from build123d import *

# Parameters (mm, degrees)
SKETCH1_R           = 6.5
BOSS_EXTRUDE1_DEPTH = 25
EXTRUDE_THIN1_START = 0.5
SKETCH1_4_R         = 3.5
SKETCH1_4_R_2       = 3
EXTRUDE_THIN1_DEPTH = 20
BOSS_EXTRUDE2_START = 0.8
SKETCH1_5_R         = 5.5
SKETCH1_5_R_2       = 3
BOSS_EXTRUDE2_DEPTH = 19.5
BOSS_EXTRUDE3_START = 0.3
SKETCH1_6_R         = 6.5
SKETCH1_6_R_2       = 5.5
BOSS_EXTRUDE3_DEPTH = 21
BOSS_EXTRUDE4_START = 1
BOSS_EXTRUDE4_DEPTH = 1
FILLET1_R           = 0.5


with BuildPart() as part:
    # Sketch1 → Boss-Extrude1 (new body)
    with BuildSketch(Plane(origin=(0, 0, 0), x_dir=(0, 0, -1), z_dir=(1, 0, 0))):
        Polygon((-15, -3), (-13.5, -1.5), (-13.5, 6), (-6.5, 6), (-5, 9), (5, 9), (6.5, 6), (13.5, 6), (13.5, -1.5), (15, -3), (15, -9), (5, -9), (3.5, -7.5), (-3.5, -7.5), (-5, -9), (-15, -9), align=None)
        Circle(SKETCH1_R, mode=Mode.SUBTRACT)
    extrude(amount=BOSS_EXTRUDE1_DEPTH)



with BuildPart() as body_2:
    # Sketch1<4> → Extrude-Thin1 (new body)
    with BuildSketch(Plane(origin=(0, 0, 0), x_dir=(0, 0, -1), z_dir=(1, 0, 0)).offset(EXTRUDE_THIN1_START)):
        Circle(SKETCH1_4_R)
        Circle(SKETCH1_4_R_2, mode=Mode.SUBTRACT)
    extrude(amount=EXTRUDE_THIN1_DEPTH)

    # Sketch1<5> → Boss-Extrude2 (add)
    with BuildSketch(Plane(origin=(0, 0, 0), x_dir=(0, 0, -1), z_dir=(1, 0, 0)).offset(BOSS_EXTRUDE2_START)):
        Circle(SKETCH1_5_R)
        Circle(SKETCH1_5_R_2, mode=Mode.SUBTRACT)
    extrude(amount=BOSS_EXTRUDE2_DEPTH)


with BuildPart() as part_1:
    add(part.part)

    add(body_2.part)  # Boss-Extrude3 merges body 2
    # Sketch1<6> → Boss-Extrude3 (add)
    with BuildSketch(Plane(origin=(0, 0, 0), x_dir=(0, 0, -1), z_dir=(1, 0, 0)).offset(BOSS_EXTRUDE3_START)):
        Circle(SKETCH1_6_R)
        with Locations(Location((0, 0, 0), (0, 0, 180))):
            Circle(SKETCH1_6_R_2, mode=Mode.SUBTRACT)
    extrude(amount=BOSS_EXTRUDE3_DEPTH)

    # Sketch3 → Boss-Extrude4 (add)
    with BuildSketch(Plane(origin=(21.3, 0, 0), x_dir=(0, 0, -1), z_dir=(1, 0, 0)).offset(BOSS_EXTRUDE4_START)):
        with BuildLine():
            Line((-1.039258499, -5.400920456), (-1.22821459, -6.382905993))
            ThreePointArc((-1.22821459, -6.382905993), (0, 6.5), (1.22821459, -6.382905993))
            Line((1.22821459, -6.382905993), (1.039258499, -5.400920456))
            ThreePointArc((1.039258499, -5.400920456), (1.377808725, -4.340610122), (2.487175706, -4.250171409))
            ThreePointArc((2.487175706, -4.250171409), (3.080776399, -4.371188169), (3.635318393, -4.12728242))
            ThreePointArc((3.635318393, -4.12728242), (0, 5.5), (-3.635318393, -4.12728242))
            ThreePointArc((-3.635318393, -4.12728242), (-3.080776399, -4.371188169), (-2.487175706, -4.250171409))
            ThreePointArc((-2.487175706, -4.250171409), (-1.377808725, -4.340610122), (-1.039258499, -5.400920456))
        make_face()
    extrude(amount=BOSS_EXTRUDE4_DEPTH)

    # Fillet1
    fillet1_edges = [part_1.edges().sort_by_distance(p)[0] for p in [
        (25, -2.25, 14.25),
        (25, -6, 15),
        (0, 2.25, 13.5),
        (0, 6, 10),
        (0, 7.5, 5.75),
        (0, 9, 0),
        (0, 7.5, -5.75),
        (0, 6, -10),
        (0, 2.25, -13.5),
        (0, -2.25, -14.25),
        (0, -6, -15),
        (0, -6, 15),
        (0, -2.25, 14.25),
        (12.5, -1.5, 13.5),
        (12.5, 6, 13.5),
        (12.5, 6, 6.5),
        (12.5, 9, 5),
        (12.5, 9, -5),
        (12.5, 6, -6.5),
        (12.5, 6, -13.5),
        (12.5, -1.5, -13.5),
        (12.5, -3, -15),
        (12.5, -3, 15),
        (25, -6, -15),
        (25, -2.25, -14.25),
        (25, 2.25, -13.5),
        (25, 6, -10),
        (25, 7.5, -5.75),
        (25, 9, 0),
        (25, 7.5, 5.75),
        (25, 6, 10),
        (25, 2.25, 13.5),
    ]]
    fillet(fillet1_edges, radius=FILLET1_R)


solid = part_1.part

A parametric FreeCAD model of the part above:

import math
import FreeCAD as App
import Part
import Sketcher
from FreeCAD import Vector


def edges_at(feature, points):
    """Names of the edges that pass closest to the given points."""
    edges = feature.Shape.Edges
    near = lambda p: min(range(len(edges)), key=lambda i: edges[i].distToShape(Part.Vertex(*p))[0])
    return sorted({f"Edge{near(p) + 1}" for p in points})


def add_polygon(sketch, points):
    """Adds a closed chain of lines whose ends are joined by coincident constraints."""
    first, n = sketch.GeometryCount, len(points)
    for a, b in zip(points, points[1:] + points[:1]):
        sketch.addGeometry(Part.LineSegment(App.Vector(*a, 0), App.Vector(*b, 0)), False)
    for i in range(n):
        sketch.addConstraint(Sketcher.Constraint("Coincident", first + i, 2, first + (i + 1) % n, 1))

doc = App.newDocument("Part")
body = doc.addObject("PartDesign::Body", "Body")

sketch1 = doc.addObject("Sketcher::SketchObject", "Sketch")
body.addObject(sketch1)
sketch1.AttachmentSupport = (doc.YZ_Plane, [""])
sketch1.MapMode = "FlatFace"
add_polygon(sketch1, [(-1.5, 13.5), (-3, 15), (-9, 15), (-9, 5), (-7.5, 3.5), (-7.5, -3.5), (-9, -5), (-9, -15), (-3, -15), (-1.5, -13.5), (6, -13.5), (6, -6.5), (9, -5), (9, 5), (6, 6.5), (6, 13.5)])
sketch1.addGeometry(Part.Circle(Vector(0, 0, 0), Vector(0, 0, 1), 6.5), False)
sketch1.addConstraint(Sketcher.Constraint("Horizontal", 1))
sketch1.addConstraint(Sketcher.Constraint("Vertical", 2))
sketch1.addConstraint(Sketcher.Constraint("Vertical", 4))
sketch1.addConstraint(Sketcher.Constraint("Vertical", 6))
sketch1.addConstraint(Sketcher.Constraint("Horizontal", 7))
sketch1.addConstraint(Sketcher.Constraint("Horizontal", 9))
sketch1.addConstraint(Sketcher.Constraint("Vertical", 10))
sketch1.addConstraint(Sketcher.Constraint("Vertical", 12))
sketch1.addConstraint(Sketcher.Constraint("Vertical", 14))
sketch1.addConstraint(Sketcher.Constraint("Horizontal", 15))
sketch1.addConstraint(Sketcher.Constraint("Coincident", 16, 3, -1, 1))
sketch1.addConstraint(Sketcher.Constraint("Symmetric", 2, 2, 11, 2, -1, 1))
sketch1.addConstraint(Sketcher.Constraint("Symmetric", 5, 2, 12, 2, -1, 1))
sketch1.addConstraint(Sketcher.Constraint("Symmetric", 0, 2, 7, 2, -1))
sketch1.addConstraint(Sketcher.Constraint("Symmetric", 10, 2, 13, 2, -1))
sketch1.addConstraint(Sketcher.Constraint("Symmetric", 8, 2, 15, 2, -1))
sketch1.addConstraint(Sketcher.Constraint("Parallel", 0, 3))
sketch1.addConstraint(Sketcher.Constraint("Perpendicular", 3, 5))
sketch1.addConstraint(Sketcher.Constraint("Parallel", 5, 8))
sketch1.addConstraint(Sketcher.Constraint("Horizontal", 5, 2, 11, 2))
sketch1.addConstraint(Sketcher.Constraint("Equal", 4, 10))
sketch1.addConstraint(Sketcher.Constraint("Equal", 6, 12))
sketch1.addConstraint(Sketcher.Constraint("Equal", 0, 3))
sketch1.addConstraint(Sketcher.Constraint("Diameter", 16, 13.0))
sketch1.addConstraint(Sketcher.Constraint("DistanceX", 1, 2, 1, 1, 6.0))
sketch1.addConstraint(Sketcher.Constraint("DistanceY", 2, 2, 2, 1, 10.0))
sketch1.addConstraint(Sketcher.Constraint("DistanceY", 4, 2, 4, 1, 7.0))
sketch1.addConstraint(Sketcher.Constraint("DistanceX", 9, 1, 9, 2, 7.5))
sketch1.addConstraint(Sketcher.Constraint("DistanceX", 0, 2, -1, 1, 3.0))
pad1 = doc.addObject("PartDesign::Pad", "Pad")
body.addObject(pad1)
pad1.Profile = sketch1
pad1.Length = 25
body2 = doc.addObject("PartDesign::Body", "Body001")

sketch2 = doc.addObject("Sketcher::SketchObject", "Sketch001")
body2.addObject(sketch2)
sketch2.AttachmentSupport = (doc.getObject("YZ_Plane001"), [""])
sketch2.MapMode = "FlatFace"
sketch2.AttachmentOffset = App.Placement(Vector(0, 0, 0.5), App.Rotation())
sketch2.addGeometry(Part.Circle(Vector(0, 0, 0), Vector(0, 0, 1), 3.5), False)
sketch2.addGeometry(Part.Circle(Vector(0, 0, 0), Vector(0, 0, 1), 3), False)
sketch2.addConstraint(Sketcher.Constraint("Coincident", 0, 3, -1, 1))
sketch2.addConstraint(Sketcher.Constraint("Coincident", 1, 3, -1, 1))
sketch2.addConstraint(Sketcher.Constraint("Diameter", 0, 7.0))
sketch2.addConstraint(Sketcher.Constraint("Diameter", 1, 6.0))
pad2 = doc.addObject("PartDesign::Pad", "Pad001")
body2.addObject(pad2)
pad2.Profile = sketch2
pad2.Length = 20

sketch3 = doc.addObject("Sketcher::SketchObject", "Sketch002")
body2.addObject(sketch3)
sketch3.AttachmentSupport = (doc.getObject("YZ_Plane001"), [""])
sketch3.MapMode = "FlatFace"
sketch3.AttachmentOffset = App.Placement(Vector(0, 0, 0.8), App.Rotation())
sketch3.addGeometry(Part.Circle(Vector(0, 0, 0), Vector(0, 0, 1), 5.5), False)
sketch3.addGeometry(Part.Circle(Vector(0, 0, 0), Vector(0, 0, 1), 3), False)
sketch3.addConstraint(Sketcher.Constraint("Coincident", 0, 3, -1, 1))
sketch3.addConstraint(Sketcher.Constraint("Coincident", 1, 3, -1, 1))
sketch3.addConstraint(Sketcher.Constraint("Diameter", 0, 11.0))
sketch3.addConstraint(Sketcher.Constraint("Diameter", 1, 6.0))
pad3 = doc.addObject("PartDesign::Pad", "Pad002")
body2.addObject(pad3)
pad3.Profile = sketch3
pad3.Length = 19.5
body.AllowCompound = True
doc.recompute()

boolean = doc.addObject("PartDesign::Boolean", "Boolean")
body.addObject(boolean)
boolean.Type = "Fuse"
boolean.addObjects([body2])

sketch4 = doc.addObject("Sketcher::SketchObject", "Sketch003")
body.addObject(sketch4)
sketch4.AttachmentSupport = (doc.YZ_Plane, [""])
sketch4.MapMode = "FlatFace"
sketch4.AttachmentOffset = App.Placement(Vector(0, 0, 0.3), App.Rotation())
sketch4.addGeometry(Part.Circle(Vector(0, 0, 0), Vector(0, 0, 1), 6), False)
sketch4.addGeometry(Part.Circle(Vector(0, 0, 0), Vector(0, 0, 1), 6), False)
sketch4.addConstraint(Sketcher.Constraint("Coincident", 0, 3, -1, 1))
sketch4.addConstraint(Sketcher.Constraint("Coincident", 1, 3, -1, 1))
sketch4.addConstraint(Sketcher.Constraint("Diameter", 0, 13.0))
sketch4.addConstraint(Sketcher.Constraint("Diameter", 1, 11.0))
pad4 = doc.addObject("PartDesign::Pad", "Pad003")
body.addObject(pad4)
pad4.Profile = sketch4
pad4.Length = 21

sketch5 = doc.addObject("Sketcher::SketchObject", "Sketch004")
body.addObject(sketch5)
sketch5.AttachmentSupport = (doc.YZ_Plane, [""])
sketch5.MapMode = "FlatFace"
sketch5.AttachmentOffset = App.Placement(Vector(0, 0, 22.3), App.Rotation())
sketch5.addGeometry(Part.LineSegment(Vector(-6.4, 1.2, 0), Vector(-5.4, 1, 0)), False)
sketch5.addGeometry(Part.ArcOfCircle(Part.Circle(Vector(-5.1, 2, 0), Vector(0, 0, 1), 1), math.radians(-106), math.radians(29)), False)
sketch5.addGeometry(Part.ArcOfCircle(Part.Circle(Vector(-3.4, 3, 0), Vector(0, 0, 1), 1), math.radians(139), math.radians(209)), False)
sketch5.addGeometry(Part.ArcOfCircle(Part.Circle(Vector(0, 0, 0), Vector(0, 0, 1), 5.5), math.radians(-139), math.radians(139)), False)
sketch5.addGeometry(Part.ArcOfCircle(Part.Circle(Vector(-3.4, -3, 0), Vector(0, 0, 1), 1), math.radians(151), math.radians(221)), False)
sketch5.addGeometry(Part.ArcOfCircle(Part.Circle(Vector(-5.1, -2, 0), Vector(0, 0, 1), 1), math.radians(-29), math.radians(106)), False)
sketch5.addGeometry(Part.LineSegment(Vector(-5.4, -1, 0), Vector(-6.4, -1.2, 0)), False)
sketch5.addGeometry(Part.ArcOfCircle(Part.Circle(Vector(0, 0, 0), Vector(0, 0, 1), 6.5), math.radians(-169), math.radians(169)), False)
sketch5.addConstraint(Sketcher.Constraint("Coincident", 0, 2, 1, 1))
sketch5.addConstraint(Sketcher.Constraint("Tangent", 1, 2, 2, 2))
sketch5.addConstraint(Sketcher.Constraint("Tangent", 2, 1, 3, 2))
sketch5.addConstraint(Sketcher.Constraint("Tangent", 3, 1, 4, 2))
sketch5.addConstraint(Sketcher.Constraint("Tangent", 4, 1, 5, 1))
sketch5.addConstraint(Sketcher.Constraint("Coincident", 5, 2, 6, 1))
sketch5.addConstraint(Sketcher.Constraint("Coincident", 6, 2, 7, 1))
sketch5.addConstraint(Sketcher.Constraint("Coincident", 7, 2, 0, 1))
sketch5.addConstraint(Sketcher.Constraint("Coincident", 3, 3, -1, 1))
sketch5.addConstraint(Sketcher.Constraint("Coincident", 7, 3, -1, 1))
sketch5.addConstraint(Sketcher.Constraint("Equal", 1, 2))
sketch5.addConstraint(Sketcher.Constraint("Equal", 2, 4))
sketch5.addConstraint(Sketcher.Constraint("Equal", 4, 5))
sketch5.addConstraint(Sketcher.Constraint("Symmetric", 1, 3, 5, 3, -1))
sketch5.addConstraint(Sketcher.Constraint("Vertical", 0, 2, 5, 2))
sketch5.addConstraint(Sketcher.Constraint("Vertical", 6, 2, 7, 2))
sketch5.addConstraint(Sketcher.Constraint("Radius", 1, 1.0))
sketch5.addConstraint(Sketcher.Constraint("Radius", 3, 5.5))
sketch5.addConstraint(Sketcher.Constraint("Radius", 7, 6.5))
sketch5.addConstraint(Sketcher.Constraint("Distance", 0, 1.0))
sketch5.addConstraint(Sketcher.Constraint("DistanceY", -1, 1, 1, 3, 2.0))
sketch5.addConstraint(Sketcher.Constraint("DistanceY", -1, 1, 2, 3, 2.974351))
sketch5.addConstraint(Sketcher.Constraint("DistanceX", 6, 2, 5, 3, 1.259431))
pad5 = doc.addObject("PartDesign::Pad", "Pad004")
body.addObject(pad5)
pad5.Profile = sketch5
pad5.Length = 1
doc.recompute()

fillet = doc.addObject("PartDesign::Fillet", "Fillet")
body.addObject(fillet)
fillet.Base = (pad5, edges_at(pad5, [
    (25, -2.25, 14.25),
    (25, -6, 15),
    (0, 2.25, 13.5),
    (0, 6, 10),
    (0, 7.5, 5.75),
    (0, 9, 0),
    (0, 7.5, -5.75),
    (0, 6, -10),
    (0, 2.25, -13.5),
    (0, -2.25, -14.25),
    (0, -6, -15),
    (0, -6, 15),
    (0, -2.25, 14.25),
    (12.5, -1.5, 13.5),
    (12.5, 6, 13.5),
    (12.5, 6, 6.5),
    (12.5, 9, 5),
    (12.5, 9, -5),
    (12.5, 6, -6.5),
    (12.5, 6, -13.5),
    (12.5, -1.5, -13.5),
    (12.5, -3, -15),
    (12.5, -3, 15),
    (25, -6, -15),
    (25, -2.25, -14.25),
    (25, 2.25, -13.5),
    (25, 6, -10),
    (25, 7.5, -5.75),
    (25, 9, 0),
    (25, 7.5, 5.75),
    (25, 6, 10),
    (25, 2.25, 13.5),
]))
fillet.Radius = 0.5

doc.recompute()
